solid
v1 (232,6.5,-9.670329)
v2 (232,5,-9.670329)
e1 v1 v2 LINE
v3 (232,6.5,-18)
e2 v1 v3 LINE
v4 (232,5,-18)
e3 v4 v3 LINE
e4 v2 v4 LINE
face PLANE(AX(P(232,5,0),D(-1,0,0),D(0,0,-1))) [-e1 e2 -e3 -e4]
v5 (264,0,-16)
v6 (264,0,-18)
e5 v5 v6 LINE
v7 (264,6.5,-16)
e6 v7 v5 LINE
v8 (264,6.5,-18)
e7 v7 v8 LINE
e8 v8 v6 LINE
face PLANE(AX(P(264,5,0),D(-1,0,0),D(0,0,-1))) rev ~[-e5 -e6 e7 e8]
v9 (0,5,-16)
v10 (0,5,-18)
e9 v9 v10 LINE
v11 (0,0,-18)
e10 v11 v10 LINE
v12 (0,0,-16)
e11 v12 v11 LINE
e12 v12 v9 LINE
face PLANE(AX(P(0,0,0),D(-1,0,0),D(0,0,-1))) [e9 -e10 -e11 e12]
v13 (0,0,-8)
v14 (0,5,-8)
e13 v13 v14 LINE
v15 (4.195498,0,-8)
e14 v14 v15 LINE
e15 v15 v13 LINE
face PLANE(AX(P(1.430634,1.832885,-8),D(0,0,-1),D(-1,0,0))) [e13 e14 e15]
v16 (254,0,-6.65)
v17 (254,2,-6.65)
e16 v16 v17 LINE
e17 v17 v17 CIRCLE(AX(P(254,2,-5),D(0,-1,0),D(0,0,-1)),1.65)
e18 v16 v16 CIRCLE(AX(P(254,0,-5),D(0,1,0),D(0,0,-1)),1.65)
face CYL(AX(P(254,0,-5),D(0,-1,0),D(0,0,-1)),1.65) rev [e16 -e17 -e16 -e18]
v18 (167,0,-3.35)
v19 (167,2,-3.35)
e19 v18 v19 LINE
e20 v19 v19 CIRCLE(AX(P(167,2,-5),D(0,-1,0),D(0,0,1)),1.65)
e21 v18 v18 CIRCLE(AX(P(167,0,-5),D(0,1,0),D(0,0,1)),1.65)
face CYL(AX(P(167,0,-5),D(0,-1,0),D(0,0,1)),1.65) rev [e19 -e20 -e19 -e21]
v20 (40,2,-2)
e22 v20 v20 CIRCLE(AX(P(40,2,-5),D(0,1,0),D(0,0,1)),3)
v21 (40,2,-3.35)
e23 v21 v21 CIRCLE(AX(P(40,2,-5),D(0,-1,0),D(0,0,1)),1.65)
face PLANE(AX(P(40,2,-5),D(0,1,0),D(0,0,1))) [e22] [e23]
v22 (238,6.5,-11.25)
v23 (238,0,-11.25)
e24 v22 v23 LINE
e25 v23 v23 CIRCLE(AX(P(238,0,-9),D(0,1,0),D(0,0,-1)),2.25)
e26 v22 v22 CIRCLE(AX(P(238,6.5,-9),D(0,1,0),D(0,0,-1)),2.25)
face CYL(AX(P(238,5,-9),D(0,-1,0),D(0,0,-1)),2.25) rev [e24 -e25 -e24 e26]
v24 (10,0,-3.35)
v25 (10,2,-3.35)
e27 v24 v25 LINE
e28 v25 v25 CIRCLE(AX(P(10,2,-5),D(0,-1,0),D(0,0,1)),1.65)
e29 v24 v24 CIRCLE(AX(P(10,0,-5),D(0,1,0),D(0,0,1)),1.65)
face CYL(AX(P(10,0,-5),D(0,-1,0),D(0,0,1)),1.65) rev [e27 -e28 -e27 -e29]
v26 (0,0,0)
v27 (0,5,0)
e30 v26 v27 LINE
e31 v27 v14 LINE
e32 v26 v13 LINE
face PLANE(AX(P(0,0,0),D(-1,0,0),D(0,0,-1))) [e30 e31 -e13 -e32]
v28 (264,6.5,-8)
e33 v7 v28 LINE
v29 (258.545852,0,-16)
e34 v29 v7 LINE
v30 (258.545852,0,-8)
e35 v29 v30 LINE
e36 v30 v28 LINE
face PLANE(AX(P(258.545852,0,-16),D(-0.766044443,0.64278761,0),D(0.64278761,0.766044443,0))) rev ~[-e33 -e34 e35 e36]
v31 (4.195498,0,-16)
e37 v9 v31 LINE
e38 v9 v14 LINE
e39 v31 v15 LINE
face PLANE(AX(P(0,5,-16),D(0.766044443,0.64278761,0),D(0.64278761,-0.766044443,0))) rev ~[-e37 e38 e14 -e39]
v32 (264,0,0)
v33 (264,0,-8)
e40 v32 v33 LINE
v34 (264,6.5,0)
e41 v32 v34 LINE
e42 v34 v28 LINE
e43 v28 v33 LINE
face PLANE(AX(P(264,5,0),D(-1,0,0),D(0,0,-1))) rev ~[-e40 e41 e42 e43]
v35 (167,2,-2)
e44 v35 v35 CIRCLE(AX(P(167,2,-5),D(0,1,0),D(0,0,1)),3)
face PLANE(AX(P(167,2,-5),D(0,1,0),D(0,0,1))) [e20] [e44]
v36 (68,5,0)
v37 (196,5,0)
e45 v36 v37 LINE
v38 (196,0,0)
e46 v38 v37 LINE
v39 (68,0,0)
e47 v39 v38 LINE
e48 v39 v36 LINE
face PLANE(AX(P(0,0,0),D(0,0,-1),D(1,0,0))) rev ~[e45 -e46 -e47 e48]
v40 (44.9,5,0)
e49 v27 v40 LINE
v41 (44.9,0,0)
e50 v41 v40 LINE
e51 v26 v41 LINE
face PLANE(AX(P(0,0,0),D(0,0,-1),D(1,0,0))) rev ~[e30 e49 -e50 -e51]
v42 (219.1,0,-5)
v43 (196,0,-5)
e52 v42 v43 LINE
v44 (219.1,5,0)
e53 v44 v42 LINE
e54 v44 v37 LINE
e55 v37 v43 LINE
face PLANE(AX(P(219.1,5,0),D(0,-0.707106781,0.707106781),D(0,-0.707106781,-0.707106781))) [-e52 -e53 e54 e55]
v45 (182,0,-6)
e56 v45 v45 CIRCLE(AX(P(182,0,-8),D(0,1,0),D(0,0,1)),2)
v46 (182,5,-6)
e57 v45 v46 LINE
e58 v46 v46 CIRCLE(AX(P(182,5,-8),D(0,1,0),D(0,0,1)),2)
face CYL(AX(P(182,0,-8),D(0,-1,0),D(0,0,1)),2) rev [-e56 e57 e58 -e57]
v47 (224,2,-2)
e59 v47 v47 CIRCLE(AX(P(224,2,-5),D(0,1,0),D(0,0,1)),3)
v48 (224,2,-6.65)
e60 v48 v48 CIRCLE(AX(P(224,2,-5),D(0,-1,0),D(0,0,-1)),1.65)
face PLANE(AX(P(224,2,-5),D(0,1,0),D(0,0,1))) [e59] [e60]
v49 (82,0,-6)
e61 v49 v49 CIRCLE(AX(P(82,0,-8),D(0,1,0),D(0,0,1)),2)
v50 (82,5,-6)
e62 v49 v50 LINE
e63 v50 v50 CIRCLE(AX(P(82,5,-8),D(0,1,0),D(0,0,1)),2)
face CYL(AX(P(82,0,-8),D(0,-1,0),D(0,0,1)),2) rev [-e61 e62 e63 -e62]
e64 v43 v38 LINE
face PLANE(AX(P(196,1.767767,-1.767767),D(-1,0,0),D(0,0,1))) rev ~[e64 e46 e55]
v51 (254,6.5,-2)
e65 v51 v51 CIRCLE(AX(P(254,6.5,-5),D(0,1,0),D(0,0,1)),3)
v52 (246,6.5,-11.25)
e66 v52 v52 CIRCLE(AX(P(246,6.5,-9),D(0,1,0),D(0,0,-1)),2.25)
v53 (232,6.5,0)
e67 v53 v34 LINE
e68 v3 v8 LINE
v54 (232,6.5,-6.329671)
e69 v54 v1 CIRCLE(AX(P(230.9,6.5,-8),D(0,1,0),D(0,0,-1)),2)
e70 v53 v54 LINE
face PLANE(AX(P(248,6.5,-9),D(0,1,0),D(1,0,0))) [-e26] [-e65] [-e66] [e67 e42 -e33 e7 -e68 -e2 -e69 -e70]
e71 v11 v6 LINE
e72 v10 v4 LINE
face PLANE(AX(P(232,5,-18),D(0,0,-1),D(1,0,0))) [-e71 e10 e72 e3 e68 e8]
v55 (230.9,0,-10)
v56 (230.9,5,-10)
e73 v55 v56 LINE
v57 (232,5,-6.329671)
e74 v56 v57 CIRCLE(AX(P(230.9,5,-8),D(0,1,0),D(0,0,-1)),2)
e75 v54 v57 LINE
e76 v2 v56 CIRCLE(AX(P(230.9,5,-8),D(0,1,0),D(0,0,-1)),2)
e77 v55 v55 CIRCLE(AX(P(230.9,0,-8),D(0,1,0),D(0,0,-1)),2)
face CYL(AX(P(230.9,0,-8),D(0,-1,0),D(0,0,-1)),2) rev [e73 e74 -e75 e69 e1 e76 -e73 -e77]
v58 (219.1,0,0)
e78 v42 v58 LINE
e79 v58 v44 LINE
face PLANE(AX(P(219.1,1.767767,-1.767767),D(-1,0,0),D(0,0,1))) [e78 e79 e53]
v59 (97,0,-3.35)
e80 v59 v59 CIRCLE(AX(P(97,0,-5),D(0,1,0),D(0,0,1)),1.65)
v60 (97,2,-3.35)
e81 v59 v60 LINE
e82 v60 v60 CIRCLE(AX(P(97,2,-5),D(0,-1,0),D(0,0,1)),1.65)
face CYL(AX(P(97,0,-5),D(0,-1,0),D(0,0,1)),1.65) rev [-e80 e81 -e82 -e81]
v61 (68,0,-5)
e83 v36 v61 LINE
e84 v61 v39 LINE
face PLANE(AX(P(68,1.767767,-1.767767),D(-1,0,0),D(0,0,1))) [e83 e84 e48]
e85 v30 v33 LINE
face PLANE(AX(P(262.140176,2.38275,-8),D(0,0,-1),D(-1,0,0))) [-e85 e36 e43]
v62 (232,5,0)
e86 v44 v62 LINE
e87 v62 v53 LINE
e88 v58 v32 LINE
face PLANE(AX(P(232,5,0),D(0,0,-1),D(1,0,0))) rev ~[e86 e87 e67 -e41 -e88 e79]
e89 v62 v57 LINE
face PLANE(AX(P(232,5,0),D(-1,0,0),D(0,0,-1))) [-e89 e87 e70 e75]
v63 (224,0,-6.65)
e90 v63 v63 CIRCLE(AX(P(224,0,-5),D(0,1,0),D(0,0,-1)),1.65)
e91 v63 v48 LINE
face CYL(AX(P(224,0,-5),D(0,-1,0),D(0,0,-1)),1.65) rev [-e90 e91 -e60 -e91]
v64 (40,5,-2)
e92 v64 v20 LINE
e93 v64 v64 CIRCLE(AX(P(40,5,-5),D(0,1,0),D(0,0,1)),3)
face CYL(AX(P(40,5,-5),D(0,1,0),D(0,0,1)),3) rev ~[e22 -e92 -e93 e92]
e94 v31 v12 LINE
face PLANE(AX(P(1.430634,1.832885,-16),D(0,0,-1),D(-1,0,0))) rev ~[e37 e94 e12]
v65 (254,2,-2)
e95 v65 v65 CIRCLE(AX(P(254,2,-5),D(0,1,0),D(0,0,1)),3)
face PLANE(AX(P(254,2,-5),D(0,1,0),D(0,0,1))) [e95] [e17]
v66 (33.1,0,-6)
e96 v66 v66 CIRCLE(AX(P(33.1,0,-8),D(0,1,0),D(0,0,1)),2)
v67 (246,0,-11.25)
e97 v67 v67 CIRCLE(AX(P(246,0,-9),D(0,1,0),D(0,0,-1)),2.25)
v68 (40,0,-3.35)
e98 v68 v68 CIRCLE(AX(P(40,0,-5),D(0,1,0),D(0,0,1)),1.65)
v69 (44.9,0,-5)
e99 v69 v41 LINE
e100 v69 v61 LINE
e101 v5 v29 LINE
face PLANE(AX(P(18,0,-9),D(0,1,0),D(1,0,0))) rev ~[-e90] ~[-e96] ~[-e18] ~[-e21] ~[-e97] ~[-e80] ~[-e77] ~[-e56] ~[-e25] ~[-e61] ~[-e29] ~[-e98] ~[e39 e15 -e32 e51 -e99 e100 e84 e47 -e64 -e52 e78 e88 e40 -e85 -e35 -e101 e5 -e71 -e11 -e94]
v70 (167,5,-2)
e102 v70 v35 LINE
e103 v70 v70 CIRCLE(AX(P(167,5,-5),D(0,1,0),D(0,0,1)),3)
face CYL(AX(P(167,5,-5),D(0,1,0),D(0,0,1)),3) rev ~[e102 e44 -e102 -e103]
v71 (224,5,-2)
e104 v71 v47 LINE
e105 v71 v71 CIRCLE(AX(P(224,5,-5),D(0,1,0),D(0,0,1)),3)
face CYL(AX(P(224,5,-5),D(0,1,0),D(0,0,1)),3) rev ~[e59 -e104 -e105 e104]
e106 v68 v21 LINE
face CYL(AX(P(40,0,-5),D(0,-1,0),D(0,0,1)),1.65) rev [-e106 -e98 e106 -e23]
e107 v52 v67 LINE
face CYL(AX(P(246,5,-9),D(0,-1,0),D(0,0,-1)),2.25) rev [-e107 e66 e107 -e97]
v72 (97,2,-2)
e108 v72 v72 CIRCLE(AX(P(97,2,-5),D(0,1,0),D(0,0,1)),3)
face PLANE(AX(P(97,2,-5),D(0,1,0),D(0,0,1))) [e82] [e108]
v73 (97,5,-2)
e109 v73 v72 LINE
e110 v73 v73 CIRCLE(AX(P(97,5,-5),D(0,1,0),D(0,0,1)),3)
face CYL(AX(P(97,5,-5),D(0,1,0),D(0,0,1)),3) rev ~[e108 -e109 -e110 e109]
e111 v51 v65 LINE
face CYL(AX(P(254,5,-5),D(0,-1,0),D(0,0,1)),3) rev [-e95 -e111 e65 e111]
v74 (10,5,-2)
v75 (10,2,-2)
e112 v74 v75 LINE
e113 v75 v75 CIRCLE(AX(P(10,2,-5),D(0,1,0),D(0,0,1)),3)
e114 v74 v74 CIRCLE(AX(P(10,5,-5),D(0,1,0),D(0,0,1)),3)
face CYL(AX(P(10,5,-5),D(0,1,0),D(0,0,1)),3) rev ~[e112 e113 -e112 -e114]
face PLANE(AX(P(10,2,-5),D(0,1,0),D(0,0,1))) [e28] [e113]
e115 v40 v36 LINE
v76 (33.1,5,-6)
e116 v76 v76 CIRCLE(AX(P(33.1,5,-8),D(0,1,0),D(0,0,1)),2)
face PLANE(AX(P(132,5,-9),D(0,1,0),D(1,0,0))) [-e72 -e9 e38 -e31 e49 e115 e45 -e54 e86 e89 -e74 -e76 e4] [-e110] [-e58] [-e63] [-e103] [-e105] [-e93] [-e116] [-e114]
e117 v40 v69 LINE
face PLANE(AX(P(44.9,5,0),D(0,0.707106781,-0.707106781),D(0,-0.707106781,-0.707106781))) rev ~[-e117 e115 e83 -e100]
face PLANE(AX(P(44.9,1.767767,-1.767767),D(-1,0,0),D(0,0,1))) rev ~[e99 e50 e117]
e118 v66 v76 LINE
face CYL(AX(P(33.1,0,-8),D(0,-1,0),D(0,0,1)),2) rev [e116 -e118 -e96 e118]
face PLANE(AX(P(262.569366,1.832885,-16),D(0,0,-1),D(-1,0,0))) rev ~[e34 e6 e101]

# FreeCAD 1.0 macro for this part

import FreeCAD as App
import Part
import Sketcher

V = App.Vector
Q = App.Units.Quantity


def add_polygon(sketch, points):
    """Adds a closed chain of lines whose ends are joined by coincident constraints."""
    first, n = sketch.GeometryCount, len(points)
    for a, b in zip(points, points[1:] + points[:1]):
        sketch.addGeometry(Part.LineSegment(App.Vector(*a, 0), App.Vector(*b, 0)), False)
    for i in range(n):
        sketch.addConstraint(Sketcher.Constraint("Coincident", first + i, 2, first + (i + 1) % n, 1))

doc = App.newDocument("Part")
body = doc.addObject("PartDesign::Body", "Body")

# Sketch on XZ plane
sketch1 = doc.addObject("Sketcher::SketchObject", "Sketch")
body.addObject(sketch1)
sketch1.AttachmentSupport = (doc.XZ_Plane, [""])
sketch1.MapMode = "FlatFace"
add_polygon(sketch1, [(0, -18), (0, 0), (264, 0), (264, -18)])  # lines 0-3
sketch1.addGeometry(Part.Circle(V(10, -5, 0), V(0, 0, 1), 1.6), False)  # 4
sketch1.addGeometry(Part.Circle(V(40, -5, 0), V(0, 0, 1), 1.6), False)  # 5
sketch1.addGeometry(Part.Circle(V(97, -5, 0), V(0, 0, 1), 1.6), False)  # 6
sketch1.addGeometry(Part.Circle(V(167, -5, 0), V(0, 0, 1), 1.6), False)  # 7
sketch1.addGeometry(Part.Circle(V(224, -5, 0), V(0, 0, 1), 1.6), False)  # 8
sketch1.addGeometry(Part.Circle(V(254, -5, 0), V(0, 0, 1), 1.6), False)  # 9
sketch1.addGeometry(Part.Circle(V(33.1, -8, 0), V(0, 0, 1), 2), False)  # 10
sketch1.addGeometry(Part.Circle(V(18, -9, 0), V(0, 0, 1), 2.2), False)  # 11
sketch1.addGeometry(Part.Circle(V(26, -9, 0), V(0, 0, 1), 2.2), False)  # 12
sketch1.addGeometry(Part.Circle(V(82, -8, 0), V(0, 0, 1), 2), False)  # 13
sketch1.addGeometry(Part.Circle(V(182, -8, 0), V(0, 0, 1), 2), False)  # 14
sketch1.addGeometry(Part.Circle(V(230.9, -8, 0), V(0, 0, 1), 2), False)  # 15
sketch1.addGeometry(Part.Circle(V(238, -9, 0), V(0, 0, 1), 2.2), False)  # 16
sketch1.addGeometry(Part.Circle(V(246, -9, 0), V(0, 0, 1), 2.2), False)  # 17
sketch1.addConstraint([
    Sketcher.Constraint("Vertical", 0),
    Sketcher.Constraint("Horizontal", 1),
    Sketcher.Constraint("Vertical", 2),
    Sketcher.Constraint("Horizontal", 3),
    Sketcher.Constraint("Coincident", 0, 2, -1, 1),
    Sketcher.Constraint("Equal", 4, 5),
    Sketcher.Constraint("Equal", 5, 6),
    Sketcher.Constraint("Equal", 6, 7),
    Sketcher.Constraint("Equal", 7, 8),
    Sketcher.Constraint("Equal", 8, 9),
    Sketcher.Constraint("Equal", 11, 12),
    Sketcher.Constraint("Equal", 10, 13),
    Sketcher.Constraint("Equal", 13, 14),
    Sketcher.Constraint("Equal", 14, 15),
    Sketcher.Constraint("Equal", 12, 16),
    Sketcher.Constraint("Equal", 16, 17),
    Sketcher.Constraint("Horizontal", 4, 3, 5, 3),
    Sketcher.Constraint("Horizontal", 5, 3, 6, 3),
    Sketcher.Constraint("Horizontal", 6, 3, 7, 3),
    Sketcher.Constraint("Horizontal", 7, 3, 8, 3),
    Sketcher.Constraint("Horizontal", 8, 3, 9, 3),
    Sketcher.Constraint("Horizontal", 11, 3, 12, 3),
    Sketcher.Constraint("Horizontal", 10, 3, 13, 3),
    Sketcher.Constraint("Horizontal", 13, 3, 14, 3),
    Sketcher.Constraint("Horizontal", 14, 3, 15, 3),
    Sketcher.Constraint("Horizontal", 12, 3, 16, 3),
    Sketcher.Constraint("Horizontal", 16, 3, 17, 3),
    Sketcher.Constraint("Diameter", 10, 4.0),
    Sketcher.Constraint("Diameter", 4, 3.3),
    Sketcher.Constraint("Diameter", 11, 4.5),
    Sketcher.Constraint("DistanceX", 1, 1, 1, 2, 264.0),
    Sketcher.Constraint("DistanceY", 0, 1, 0, 2, 18.0),
    Sketcher.Constraint("DistanceX", -1, 1, 4, 3, 10.0),
    Sketcher.Constraint("DistanceY", 4, 3, -1, 1, 5.0),
    Sketcher.Constraint("DistanceX", -1, 1, 5, 3, 40.0),
    Sketcher.Constraint("DistanceX", -1, 1, 6, 3, 97.0),
    Sketcher.Constraint("DistanceX", -1, 1, 7, 3, 167.0),
    Sketcher.Constraint("DistanceX", -1, 1, 8, 3, 224.0),
    Sketcher.Constraint("DistanceX", -1, 1, 9, 3, 254.0),
    Sketcher.Constraint("DistanceY", 10, 3, -1, 1, 8.0),
    Sketcher.Constraint("DistanceX", -1, 1, 11, 3, 18.0),
    Sketcher.Constraint("DistanceY", 11, 3, -1, 1, 9.0),
    Sketcher.Constraint("DistanceX", -1, 1, 12, 3, 26.0),
    Sketcher.Constraint("DistanceX", -1, 1, 13, 3, 82.0),
    Sketcher.Constraint("DistanceX", -1, 1, 14, 3, 182.0),
    Sketcher.Constraint("DistanceX", -1, 1, 16, 3, 238.0),
    Sketcher.Constraint("DistanceX", -1, 1, 17, 3, 246.0),
    Sketcher.Constraint("DistanceX", -1, 1, 10, 3, 33.1),
    Sketcher.Constraint("DistanceX", -1, 1, 15, 3, 230.9),
])
pad1 = doc.addObject("PartDesign::Pad", "Pad")
body.addObject(pad1)
pad1.Profile = sketch1
pad1.Length = 5
pad1.Reversed = True

# Sketch on XY plane
sketch2 = doc.addObject("Sketcher::SketchObject", "Sketch001")
body.addObject(sketch2)
sketch2.AttachmentSupport = (doc.XY_Plane, [""])
sketch2.MapMode = "FlatFace"
sketch2.AttachmentOffset = App.Placement(V(0, 0, -16), App.Rotation())
add_polygon(sketch2, [(4.2, 0), (0, 0), (0, 5)])  # lines 0-2
add_polygon(sketch2, [(264, 0), (259.8, 0), (264, 5)])  # lines 3-5
sketch2.addConstraint([
    Sketcher.Constraint("Horizontal", 0),
    Sketcher.Constraint("Vertical", 1),
    Sketcher.Constraint("Horizontal", 3),
    Sketcher.Constraint("Vertical", 5),
    Sketcher.Constraint("Coincident", 0, 2, -1, 1),
    Sketcher.Constraint("PointOnObject", 3, 2, -1),
    Sketcher.Constraint("Horizontal", 1, 2, 4, 2),
    Sketcher.Constraint("Equal", 0, 3),
    Sketcher.Constraint("DistanceY", 1, 1, 1, 2, 5.0),
    Sketcher.Constraint("Angle", 2, Q("-50 deg")),
    Sketcher.Constraint("DistanceX", -1, 1, 4, 2, 264.0),
])
pocket1 = doc.addObject("PartDesign::Pocket", "Pocket")
body.addObject(pocket1)
pocket1.Profile = sketch2
pocket1.Length = 8
pocket1.Reversed = True

# Sketch on YZ plane
sketch3 = doc.addObject("Sketcher::SketchObject", "Sketch002")
body.addObject(sketch3)
sketch3.AttachmentSupport = (doc.YZ_Plane, [""])
sketch3.MapMode = "FlatFace"
sketch3.AttachmentOffset = App.Placement(V(0, 0, 44.9), App.Rotation())
add_polygon(sketch3, [(5, 0), (0, -5), (0, 0)])  # lines 0-2
sketch3.addConstraint([
    Sketcher.Constraint("Vertical", 1),
    Sketcher.Constraint("Horizontal", 2),
    Sketcher.Constraint("Coincident", 1, 2, -1, 1),
    Sketcher.Constraint("Equal", 2, 1),
    Sketcher.Constraint("DistanceX", 2, 1, 2, 2, 5.0),
])
pocket2 = doc.addObject("PartDesign::Pocket", "Pocket001")
body.addObject(pocket2)
pocket2.Profile = sketch3
pocket2.Length = 23.1
pocket2.Reversed = True

# Sketch on YZ plane
sketch4 = doc.addObject("Sketcher::SketchObject", "Sketch003")
body.addObject(sketch4)
sketch4.AttachmentSupport = (doc.YZ_Plane, [""])
sketch4.MapMode = "FlatFace"
sketch4.AttachmentOffset = App.Placement(V(0, 0, 219.1), App.Rotation())
add_polygon(sketch4, [(0, -5), (5, 0), (0, 0)])  # lines 0-2
sketch4.addConstraint([
    Sketcher.Constraint("Horizontal", 1),
    Sketcher.Constraint("Vertical", 2),
    Sketcher.Constraint("Coincident", 1, 2, -1, 1),
    Sketcher.Constraint("Equal", 1, 2),
    Sketcher.Constraint("DistanceX", 1, 2, 1, 1, 5.0),
])
pocket3 = doc.addObject("PartDesign::Pocket", "Pocket002")
body.addObject(pocket3)
pocket3.Profile = sketch4
pocket3.Length = 23.1

# Sketch on XZ plane
sketch5 = doc.addObject("Sketcher::SketchObject", "Sketch004")
body.addObject(sketch5)
sketch5.AttachmentSupport = (doc.XZ_Plane, [""])
sketch5.MapMode = "FlatFace"
sketch5.AttachmentOffset = App.Placement(V(0, 0, -5), App.Rotation())
sketch5.addGeometry([
    Part.Circle(V(254, -5, 0), V(0, 0, 1), 3),  # 0
    Part.Circle(V(224, -5, 0), V(0, 0, 1), 3),  # 1
    Part.Circle(V(40, -5, 0), V(0, 0, 1), 3),  # 2
    Part.Circle(V(10, -5, 0), V(0, 0, 1), 3),  # 3
    Part.Circle(V(97, -5, 0), V(0, 0, 1), 3),  # 4
    Part.Circle(V(167, -5, 0), V(0, 0, 1), 3),  # 5
], False)
sketch5.addConstraint([
    Sketcher.Constraint("Equal", 0, 1),
    Sketcher.Constraint("Equal", 1, 2),
    Sketcher.Constraint("Equal", 2, 3),
    Sketcher.Constraint("Equal", 3, 4),
    Sketcher.Constraint("Equal", 4, 5),
    Sketcher.Constraint("Horizontal", 0, 3, 1, 3),
    Sketcher.Constraint("Horizontal", 1, 3, 2, 3),
    Sketcher.Constraint("Horizontal", 2, 3, 3, 3),
    Sketcher.Constraint("Horizontal", 3, 3, 4, 3),
    Sketcher.Constraint("Horizontal", 4, 3, 5, 3),
    Sketcher.Constraint("Diameter", 0, 6.0),
    Sketcher.Constraint("DistanceX", -1, 1, 0, 3, 254.0),
    Sketcher.Constraint("DistanceY", 0, 3, -1, 1, 5.0),
    Sketcher.Constraint("DistanceX", -1, 1, 1, 3, 224.0),
    Sketcher.Constraint("DistanceX", -1, 1, 2, 3, 40.0),
    Sketcher.Constraint("DistanceX", -1, 1, 3, 3, 10.0),
    Sketcher.Constraint("DistanceX", -1, 1, 4, 3, 97.0),
    Sketcher.Constraint("DistanceX", -1, 1, 5, 3, 167.0),
])
pocket4 = doc.addObject("PartDesign::Pocket", "Pocket003")
body.addObject(pocket4)
pocket4.Profile = sketch5
pocket4.Length = 3
pocket4.Reversed = True

# Sketch on XZ plane
sketch6 = doc.addObject("Sketcher::SketchObject", "Sketch005")
body.addObject(sketch6)
sketch6.AttachmentSupport = (doc.XZ_Plane, [""])
sketch6.MapMode = "FlatFace"
sketch6.AttachmentOffset = App.Placement(V(0, 0, -5), App.Rotation())
add_polygon(sketch6, [(232, -18), (232, 0), (264, 0), (264, -18)])  # lines 0-3
sketch6.addGeometry(Part.Circle(V(254, -5, 0), V(0, 0, 1), 3), False)  # 4
sketch6.addGeometry(Part.Circle(V(238, -9, 0), V(0, 0, 1), 2.2), False)  # 5
sketch6.addGeometry(Part.Circle(V(246, -9, 0), V(0, 0, 1), 2.2), False)  # 6
sketch6.addConstraint([
    Sketcher.Constraint("Vertical", 0),
    Sketcher.Constraint("Horizontal", 1),
    Sketcher.Constraint("Vertical", 2),
    Sketcher.Constraint("Horizontal", 3),
    Sketcher.Constraint("Equal", 5, 6),
    Sketcher.Constraint("PointOnObject", 0, 2, -1),
    Sketcher.Constraint("Horizontal", 5, 3, 6, 3),
    Sketcher.Constraint("Diameter", 4, 6.0),
    Sketcher.Constraint("Diameter", 5, 4.5),
    Sketcher.Constraint("DistanceX", 1, 1, 1, 2, 32.0),
    Sketcher.Constraint("DistanceY", 0, 1, 0, 2, 18.0),
    Sketcher.Constraint("DistanceX", -1, 1, 4, 3, 254.0),
    Sketcher.Constraint("DistanceY", 4, 3, -1, 1, 5.0),
    Sketcher.Constraint("DistanceX", -1, 1, 5, 3, 238.0),
    Sketcher.Constraint("DistanceY", 5, 3, -1, 1, 9.0),
    Sketcher.Constraint("DistanceX", -1, 1, 6, 3, 246.0),
    Sketcher.Constraint("DistanceX", -1, 1, 0, 2, 232.0),
])
pad2 = doc.addObject("PartDesign::Pad", "Pad001")
body.addObject(pad2)
pad2.Profile = sketch6
pad2.Length = 1.5
pad2.Reversed = True

# Sketch on XZ plane
sketch7 = doc.addObject("Sketcher::SketchObject", "Sketch006")
body.addObject(sketch7)
sketch7.AttachmentSupport = (doc.XZ_Plane, [""])
sketch7.MapMode = "FlatFace"
sketch7.addGeometry([
    Part.Circle(V(18, -9, 0), V(0, 0, 1), 2.2),
    Part.Circle(V(26, -9, 0), V(0, 0, 1), 2.2),
], False)
sketch7.addConstraint([
    Sketcher.Constraint("Equal", 0, 1),
    Sketcher.Constraint("Horizontal", 0, 3, 1, 3),
    Sketcher.Constraint("Diameter", 0, 4.5),
    Sketcher.Constraint("DistanceX", -1, 1, 0, 3, 18.0),
    Sketcher.Constraint("DistanceY", 0, 3, -1, 1, 9.0),
    Sketcher.Constraint("DistanceX", -1, 1, 1, 3, 26.0),
])
pad3 = doc.addObject("PartDesign::Pad", "Pad002")
body.addObject(pad3)
pad3.Profile = sketch7
pad3.Length = 5
pad3.Reversed = True

# Sketch on XY plane
sketch8 = doc.addObject("Sketcher::SketchObject", "Sketch007")
body.addObject(sketch8)
sketch8.AttachmentSupport = (doc.XY_Plane, [""])
sketch8.MapMode = "FlatFace"
sketch8.AttachmentOffset = App.Placement(V(0, 0, -16), App.Rotation())
add_polygon(sketch8, [(264, 6), (264, 0), (259, 0)])  # lines 0-2
sketch8.addConstraint([
    Sketcher.Constraint("Vertical", 0),
    Sketcher.Constraint("Horizontal", 1),
    Sketcher.Constraint("PointOnObject", 0, 2, -1),
    Sketcher.Constraint("Angle", 2, Q("50 deg")),
    Sketcher.Constraint("DistanceY", 0, 2, 0, 1, 6.5),
    Sketcher.Constraint("DistanceX", -1, 1, 0, 2, 264.0),
])
pocket5 = doc.addObject("PartDesign::Pocket", "Pocket004")
body.addObject(pocket5)
pocket5.Profile = sketch8
pocket5.Length = 8
pocket5.Reversed = True

# Sketch on XZ plane
sketch9 = doc.addObject("Sketcher::SketchObject", "Sketch008")
body.addObject(sketch9)
sketch9.AttachmentSupport = (doc.XZ_Plane, [""])
sketch9.MapMode = "FlatFace"
sketch9.AttachmentOffset = App.Placement(V(0, 0, -5), App.Rotation())
sketch9.addGeometry(Part.Circle(V(230.9, -8, 0), V(0, 0, 1), 2), False)
sketch9.addConstraint([
    Sketcher.Constraint("Diameter", 0, 4.0),
    Sketcher.Constraint("DistanceY", 0, 3, -1, 1, 8.0),
    Sketcher.Constraint("DistanceX", -1, 1, 0, 3, 230.9),
])
pocket6 = doc.addObject("PartDesign::Pocket", "Pocket005")
body.addObject(pocket6)
pocket6.Profile = sketch9
pocket6.Length = 1.5

doc.recompute()
